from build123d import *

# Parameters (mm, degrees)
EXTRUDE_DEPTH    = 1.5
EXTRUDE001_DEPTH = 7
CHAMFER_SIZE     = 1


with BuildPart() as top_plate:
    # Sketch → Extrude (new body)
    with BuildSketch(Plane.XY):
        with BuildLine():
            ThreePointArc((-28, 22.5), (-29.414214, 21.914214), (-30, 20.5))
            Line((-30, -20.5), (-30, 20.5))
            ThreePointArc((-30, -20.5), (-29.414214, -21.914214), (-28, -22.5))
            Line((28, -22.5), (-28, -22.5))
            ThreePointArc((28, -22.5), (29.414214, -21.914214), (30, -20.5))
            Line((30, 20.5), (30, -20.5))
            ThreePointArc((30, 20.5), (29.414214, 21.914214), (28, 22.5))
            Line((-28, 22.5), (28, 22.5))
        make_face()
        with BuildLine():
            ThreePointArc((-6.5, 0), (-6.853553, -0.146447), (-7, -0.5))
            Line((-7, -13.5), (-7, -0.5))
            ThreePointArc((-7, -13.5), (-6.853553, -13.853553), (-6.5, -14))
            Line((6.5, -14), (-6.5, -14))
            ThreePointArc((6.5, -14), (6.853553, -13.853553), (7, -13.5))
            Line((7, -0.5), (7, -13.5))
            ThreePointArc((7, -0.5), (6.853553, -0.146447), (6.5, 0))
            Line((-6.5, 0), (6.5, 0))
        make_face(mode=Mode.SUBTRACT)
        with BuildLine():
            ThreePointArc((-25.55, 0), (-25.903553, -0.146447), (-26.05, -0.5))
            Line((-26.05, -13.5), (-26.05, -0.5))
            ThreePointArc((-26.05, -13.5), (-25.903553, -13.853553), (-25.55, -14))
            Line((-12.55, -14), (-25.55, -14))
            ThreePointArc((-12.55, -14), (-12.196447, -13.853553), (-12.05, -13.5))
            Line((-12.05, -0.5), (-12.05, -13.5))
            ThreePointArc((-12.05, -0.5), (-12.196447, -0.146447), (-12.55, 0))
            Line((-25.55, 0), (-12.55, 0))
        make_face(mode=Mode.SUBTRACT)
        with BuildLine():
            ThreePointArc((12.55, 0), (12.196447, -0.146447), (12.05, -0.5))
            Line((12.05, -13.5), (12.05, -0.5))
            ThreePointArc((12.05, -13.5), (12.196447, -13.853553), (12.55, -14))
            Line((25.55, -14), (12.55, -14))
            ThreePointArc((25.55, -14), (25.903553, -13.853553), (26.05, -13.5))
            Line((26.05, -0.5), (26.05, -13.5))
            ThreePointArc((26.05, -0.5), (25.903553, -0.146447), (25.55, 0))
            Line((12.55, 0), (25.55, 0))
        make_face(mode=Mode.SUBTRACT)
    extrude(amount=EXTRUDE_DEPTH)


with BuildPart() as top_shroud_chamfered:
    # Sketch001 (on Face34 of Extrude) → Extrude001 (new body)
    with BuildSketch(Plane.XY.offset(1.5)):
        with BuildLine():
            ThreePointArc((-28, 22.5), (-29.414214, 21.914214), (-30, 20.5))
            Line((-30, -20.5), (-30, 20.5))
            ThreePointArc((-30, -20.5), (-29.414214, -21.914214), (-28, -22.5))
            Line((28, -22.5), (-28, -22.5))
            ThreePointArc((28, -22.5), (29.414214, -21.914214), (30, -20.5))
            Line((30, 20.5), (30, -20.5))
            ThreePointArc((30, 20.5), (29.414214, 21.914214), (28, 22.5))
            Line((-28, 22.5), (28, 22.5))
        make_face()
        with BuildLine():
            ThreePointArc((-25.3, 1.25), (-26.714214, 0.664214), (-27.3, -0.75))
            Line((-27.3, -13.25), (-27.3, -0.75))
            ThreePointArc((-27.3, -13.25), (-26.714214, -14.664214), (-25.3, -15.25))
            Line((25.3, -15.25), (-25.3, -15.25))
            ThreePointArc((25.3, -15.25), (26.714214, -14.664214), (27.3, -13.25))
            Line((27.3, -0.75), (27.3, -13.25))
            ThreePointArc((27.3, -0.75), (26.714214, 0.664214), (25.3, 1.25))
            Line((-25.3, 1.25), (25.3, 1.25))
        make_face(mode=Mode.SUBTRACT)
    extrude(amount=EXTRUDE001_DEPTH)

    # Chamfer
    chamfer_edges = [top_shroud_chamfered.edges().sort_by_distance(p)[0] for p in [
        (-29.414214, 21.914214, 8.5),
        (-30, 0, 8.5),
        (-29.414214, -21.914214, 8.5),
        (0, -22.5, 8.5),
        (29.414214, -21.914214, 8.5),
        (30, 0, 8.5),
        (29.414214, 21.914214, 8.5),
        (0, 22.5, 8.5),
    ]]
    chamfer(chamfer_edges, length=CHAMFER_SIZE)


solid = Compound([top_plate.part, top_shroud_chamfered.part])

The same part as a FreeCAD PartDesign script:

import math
import FreeCAD as App
import Part
import Sketcher


def edges_at(feature, points):
    """Names of the edges that pass closest to the given points."""
    edges = feature.Shape.Edges
    near = lambda p: min(range(len(edges)), key=lambda i: edges[i].distToShape(Part.Vertex(*p))[0])
    return sorted({f"Edge{near(p) + 1}" for p in points})

doc = App.newDocument("Part")
body = doc.addObject("PartDesign::Body", "Body")

# Sketch on XY plane
sketch1 = body.newObject("Sketcher::SketchObject", "Sketch")
sketch1.AttachmentSupport = (doc.getObject("XY_Plane"), [""])
sketch1.MapMode = "FlatFace"
sketch1.addGeometry(Part.ArcOfCircle(Part.Circle(App.Vector(-28.000001, 20.500001, 0), App.Vector(0, 0, 1), 1.999999), math.radians(89.999957), math.radians(180.000043)), False)
sketch1.addGeometry(Part.LineSegment(App.Vector(-30, 20.5, 0), App.Vector(-30, -20.5, 0)), False)
sketch1.addGeometry(Part.ArcOfCircle(Part.Circle(App.Vector(-28.000001, -20.500001, 0), App.Vector(0, 0, 1), 1.999999), math.radians(179.999957), math.radians(270.000043)), False)
sketch1.addGeometry(Part.LineSegment(App.Vector(-28, -22.5, 0), App.Vector(28, -22.5, 0)), False)
sketch1.addGeometry(Part.ArcOfCircle(Part.Circle(App.Vector(28.000001, -20.500001, 0), App.Vector(0, 0, 1), 1.999999), math.radians(-90.000043), math.radians(0.000043)), False)
sketch1.addGeometry(Part.LineSegment(App.Vector(30, -20.5, 0), App.Vector(30, 20.5, 0)), False)
sketch1.addGeometry(Part.ArcOfCircle(Part.Circle(App.Vector(28.000001, 20.500001, 0), App.Vector(0, 0, 1), 1.999999), math.radians(-0.000043), math.radians(90.000043)), False)
sketch1.addGeometry(Part.LineSegment(App.Vector(28, 22.5, 0), App.Vector(-28, 22.5, 0)), False)
sketch1.addGeometry(Part.ArcOfCircle(Part.Circle(App.Vector(-25.549999, -0.500001, 0), App.Vector(0, 0, 1), 0.500001), math.radians(90.000153), math.radians(179.999847)), False)
sketch1.addGeometry(Part.LineSegment(App.Vector(-25.55, 0, 0), App.Vector(-12.55, 0, 0)), False)
sketch1.addGeometry(Part.ArcOfCircle(Part.Circle(App.Vector(-12.550001, -0.500001, 0), App.Vector(0, 0, 1), 0.500001), math.radians(0.000153), math.radians(89.999847)), False)
sketch1.addGeometry(Part.LineSegment(App.Vector(-12.05, -0.5, 0), App.Vector(-12.05, -13.5, 0)), False)
sketch1.addGeometry(Part.ArcOfCircle(Part.Circle(App.Vector(-12.550001, -13.499999, 0), App.Vector(0, 0, 1), 0.500001), math.radians(-89.999847), math.radians(-0.000153)), False)
sketch1.addGeometry(Part.LineSegment(App.Vector(-12.55, -14, 0), App.Vector(-25.55, -14, 0)), False)
sketch1.addGeometry(Part.ArcOfCircle(Part.Circle(App.Vector(-25.549999, -13.499999, 0), App.Vector(0, 0, 1), 0.500001), math.radians(-179.999847), math.radians(-90.000153)), False)
sketch1.addGeometry(Part.LineSegment(App.Vector(-26.05, -13.5, 0), App.Vector(-26.05, -0.5, 0)), False)
sketch1.addGeometry(Part.ArcOfCircle(Part.Circle(App.Vector(-6.499999, -0.500001, 0), App.Vector(0, 0, 1), 0.500001), math.radians(90.000153), math.radians(179.999847)), False)
sketch1.addGeometry(Part.LineSegment(App.Vector(-6.5, 0, 0), App.Vector(6.5, 0, 0)), False)
sketch1.addGeometry(Part.ArcOfCircle(Part.Circle(App.Vector(6.499999, -0.500001, 0), App.Vector(0, 0, 1), 0.500001), math.radians(0.000153), math.radians(89.999847)), False)
sketch1.addGeometry(Part.LineSegment(App.Vector(7, -0.5, 0), App.Vector(7, -13.5, 0)), False)
sketch1.addGeometry(Part.ArcOfCircle(Part.Circle(App.Vector(6.499999, -13.499999, 0), App.Vector(0, 0, 1), 0.500001), math.radians(-89.999847), math.radians(-0.000153)), False)
sketch1.addGeometry(Part.LineSegment(App.Vector(6.5, -14, 0), App.Vector(-6.5, -14, 0)), False)
sketch1.addGeometry(Part.ArcOfCircle(Part.Circle(App.Vector(-6.499999, -13.499999, 0), App.Vector(0, 0, 1), 0.500001), math.radians(-179.999847), math.radians(-90.000153)), False)
sketch1.addGeometry(Part.LineSegment(App.Vector(-7, -13.5, 0), App.Vector(-7, -0.5, 0)), False)
sketch1.addGeometry(Part.ArcOfCircle(Part.Circle(App.Vector(12.550001, -0.500001, 0), App.Vector(0, 0, 1), 0.500001), math.radians(90.000153), math.radians(179.999847)), False)
sketch1.addGeometry(Part.LineSegment(App.Vector(12.55, 0, 0), App.Vector(25.55, 0, 0)), False)
sketch1.addGeometry(Part.ArcOfCircle(Part.Circle(App.Vector(25.549999, -0.500001, 0), App.Vector(0, 0, 1), 0.500001), math.radians(0.000153), math.radians(89.999847)), False)
sketch1.addGeometry(Part.LineSegment(App.Vector(26.05, -0.5, 0), App.Vector(26.05, -13.5, 0)), False)
sketch1.addGeometry(Part.ArcOfCircle(Part.Circle(App.Vector(25.549999, -13.499999, 0), App.Vector(0, 0, 1), 0.500001), math.radians(-89.999847), math.radians(-0.000153)), False)
sketch1.addGeometry(Part.LineSegment(App.Vector(25.55, -14, 0), App.Vector(12.55, -14, 0)), False)
sketch1.addGeometry(Part.ArcOfCircle(Part.Circle(App.Vector(12.550001, -13.499999, 0), App.Vector(0, 0, 1), 0.500001), math.radians(-179.999847), math.radians(-90.000153)), False)
sketch1.addGeometry(Part.LineSegment(App.Vector(12.05, -13.5, 0), App.Vector(12.05, -0.5, 0)), False)
sketch1.addConstraint(Sketcher.Constraint("Tangent", 0, 2, 1, 1))
sketch1.addConstraint(Sketcher.Constraint("Tangent", 1, 2, 2, 1))
sketch1.addConstraint(Sketcher.Constraint("Tangent", 2, 2, 3, 1))
sketch1.addConstraint(Sketcher.Constraint("Tangent", 3, 2, 4, 1))
sketch1.addConstraint(Sketcher.Constraint("Tangent", 4, 2, 5, 1))
sketch1.addConstraint(Sketcher.Constraint("Tangent", 5, 2, 6, 1))
sketch1.addConstraint(Sketcher.Constraint("Tangent", 6, 2, 7, 1))
sketch1.addConstraint(Sketcher.Constraint("Tangent", 7, 2, 0, 1))
sketch1.addConstraint(Sketcher.Constraint("Coincident", 8, 1, 9, 1))
sketch1.addConstraint(Sketcher.Constraint("Coincident", 9, 2, 10, 2))
sketch1.addConstraint(Sketcher.Constraint("Coincident", 10, 1, 11, 1))
sketch1.addConstraint(Sketcher.Constraint("Coincident", 11, 2, 12, 2))
sketch1.addConstraint(Sketcher.Constraint("Coincident", 12, 1, 13, 1))
sketch1.addConstraint(Sketcher.Constraint("Coincident", 13, 2, 14, 2))
sketch1.addConstraint(Sketcher.Constraint("Coincident", 14, 1, 15, 1))
sketch1.addConstraint(Sketcher.Constraint("Coincident", 15, 2, 8, 2))
sketch1.addConstraint(Sketcher.Constraint("Coincident", 16, 1, 17, 1))
sketch1.addConstraint(Sketcher.Constraint("Coincident", 17, 2, 18, 2))
sketch1.addConstraint(Sketcher.Constraint("Coincident", 18, 1, 19, 1))
sketch1.addConstraint(Sketcher.Constraint("Coincident", 19, 2, 20, 2))
sketch1.addConstraint(Sketcher.Constraint("Coincident", 20, 1, 21, 1))
sketch1.addConstraint(Sketcher.Constraint("Coincident", 21, 2, 22, 2))
sketch1.addConstraint(Sketcher.Constraint("Coincident", 22, 1, 23, 1))
sketch1.addConstraint(Sketcher.Constraint("Coincident", 23, 2, 16, 2))
sketch1.addConstraint(Sketcher.Constraint("Coincident", 24, 1, 25, 1))
sketch1.addConstraint(Sketcher.Constraint("Coincident", 25, 2, 26, 2))
sketch1.addConstraint(Sketcher.Constraint("Coincident", 26, 1, 27, 1))
sketch1.addConstraint(Sketcher.Constraint("Coincident", 27, 2, 28, 2))
sketch1.addConstraint(Sketcher.Constraint("Coincident", 28, 1, 29, 1))
sketch1.addConstraint(Sketcher.Constraint("Coincident", 29, 2, 30, 2))
sketch1.addConstraint(Sketcher.Constraint("Coincident", 30, 1, 31, 1))
sketch1.addConstraint(Sketcher.Constraint("Coincident", 31, 2, 24, 2))
sketch1.addConstraint(Sketcher.Constraint("Vertical", 1))
sketch1.addConstraint(Sketcher.Constraint("Horizontal", 3))
sketch1.addConstraint(Sketcher.Constraint("Vertical", 5))
sketch1.addConstraint(Sketcher.Constraint("Horizontal", 7))
sketch1.addConstraint(Sketcher.Constraint("Horizontal", 9))
sketch1.addConstraint(Sketcher.Constraint("Vertical", 11))
sketch1.addConstraint(Sketcher.Constraint("Horizontal", 13))
sketch1.addConstraint(Sketcher.Constraint("Vertical", 15))
sketch1.addConstraint(Sketcher.Constraint("Horizontal", 17))
sketch1.addConstraint(Sketcher.Constraint("Vertical", 19))
sketch1.addConstraint(Sketcher.Constraint("Horizontal", 21))
sketch1.addConstraint(Sketcher.Constraint("Vertical", 23))
sketch1.addConstraint(Sketcher.Constraint("Horizontal", 25))
sketch1.addConstraint(Sketcher.Constraint("Vertical", 27))
sketch1.addConstraint(Sketcher.Constraint("Horizontal", 29))
sketch1.addConstraint(Sketcher.Constraint("Vertical", 31))
sketch1.addConstraint(Sketcher.Constraint("Equal", 0, 2))
sketch1.addConstraint(Sketcher.Constraint("Equal", 2, 4))
sketch1.addConstraint(Sketcher.Constraint("Equal", 4, 6))
sketch1.addConstraint(Sketcher.Constraint("Equal", 8, 10))
sketch1.addConstraint(Sketcher.Constraint("Equal", 10, 12))
sketch1.addConstraint(Sketcher.Constraint("Equal", 12, 14))
sketch1.addConstraint(Sketcher.Constraint("Equal", 14, 16))
sketch1.addConstraint(Sketcher.Constraint("Equal", 16, 18))
sketch1.addConstraint(Sketcher.Constraint("Equal", 18, 20))
sketch1.addConstraint(Sketcher.Constraint("Equal", 20, 22))
sketch1.addConstraint(Sketcher.Constraint("Equal", 22, 24))
sketch1.addConstraint(Sketcher.Constraint("Equal", 24, 26))
sketch1.addConstraint(Sketcher.Constraint("Equal", 26, 28))
sketch1.addConstraint(Sketcher.Constraint("Equal", 28, 30))
sketch1.addConstraint(Sketcher.Constraint("Symmetric", 0, 3, 4, 3, -1, 1))
sketch1.addConstraint(Sketcher.Constraint("Symmetric", 16, 1, 17, 2, -1, 1))
sketch1.addConstraint(Sketcher.Constraint("Symmetric", 9, 2, 24, 1, -1, 1))
sketch1.addConstraint(Sketcher.Constraint("Symmetric", 10, 3, 24, 3, -2))
sketch1.addConstraint(Sketcher.Constraint("Symmetric", 14, 3, 28, 3, -2))
sketch1.addConstraint(Sketcher.Constraint("Symmetric", 19, 2, 22, 1, -2))
sketch1.addConstraint(Sketcher.Constraint("Horizontal", 14, 3, 20, 3))
sketch1.addConstraint(Sketcher.Constraint("Horizontal", 26, 3, 10, 1))
sketch1.addConstraint(Sketcher.Constraint("Horizontal", 30, 3, 11, 2))
sketch1.addConstraint(Sketcher.Constraint("Horizontal", 11, 2, 14, 1))
sketch1.addConstraint(Sketcher.Constraint("Horizontal", 10, 1, 15, 2))
sketch1.addConstraint(Sketcher.Constraint("Horizontal", 15, 2, 18, 1))
sketch1.addConstraint(Sketcher.Constraint("Horizontal", 14, 1, 19, 2))
sketch1.addConstraint(Sketcher.Constraint("Horizontal", 18, 1, 23, 2))
sketch1.addConstraint(Sketcher.Constraint("Horizontal", 23, 2, 26, 1))
sketch1.addConstraint(Sketcher.Constraint("Horizontal", 22, 1, 27, 2))
sketch1.addConstraint(Sketcher.Constraint("Horizontal", 27, 2, 30, 1))
sketch1.addConstraint(Sketcher.Constraint("Horizontal", 26, 1, 31, 2))
sketch1.addConstraint(Sketcher.Constraint("Vertical", 14, 3, 8, 1))
sketch1.addConstraint(Sketcher.Constraint("Vertical", 12, 3, 9, 2))
sketch1.addConstraint(Sketcher.Constraint("Vertical", 9, 2, 12, 1))
sketch1.addConstraint(Sketcher.Constraint("Vertical", 8, 1, 13, 2))
sketch1.addConstraint(Sketcher.Constraint("Vertical", 22, 3, 16, 1))
sketch1.addConstraint(Sketcher.Constraint("Vertical", 17, 2, 20, 1))
sketch1.addConstraint(Sketcher.Constraint("Vertical", 16, 1, 21, 2))
sketch1.addConstraint(Sketcher.Constraint("Vertical", 28, 3, 25, 2))
sketch1.addConstraint(Sketcher.Constraint("Vertical", 25, 2, 28, 1))
sketch1.addConstraint(Sketcher.Constraint("Vertical", 24, 1, 29, 2))
sketch1.addConstraint(Sketcher.Constraint("Equal", 13, 17))
sketch1.addConstraint(Sketcher.Constraint("Equal", 29, 11))
sketch1.addConstraint(Sketcher.Constraint("Radius", 0, 1.999999))
sketch1.addConstraint(Sketcher.Constraint("Radius", 8, 0.500001))
sketch1.addConstraint(Sketcher.Constraint("DistanceX", 3, 1, 3, 2, 56.0))
sketch1.addConstraint(Sketcher.Constraint("DistanceX", 9, 1, 9, 2, 13.0))
sketch1.addConstraint(Sketcher.Constraint("DistanceY", 1, 2, 1, 1, 41.0))
sketch1.addConstraint(Sketcher.Constraint("DistanceX", 8, 3, -1, 1, 25.549999))
pad1 = body.newObject("PartDesign::Pad", "Pad")
pad1.Profile = sketch1
pad1.Length = 1.5
body2 = doc.addObject("PartDesign::Body", "Body001")

# Sketch on XY plane
sketch2 = body2.newObject("Sketcher::SketchObject", "Sketch001")
sketch2.AttachmentSupport = (doc.getObject("XY_Plane001"), [""])
sketch2.MapMode = "FlatFace"
sketch2.AttachmentOffset = App.Placement(App.Vector(0, 0, 1.5), App.Rotation())
sketch2.addGeometry(Part.ArcOfCircle(Part.Circle(App.Vector(-28.000001, 20.500001, 0), App.Vector(0, 0, 1), 1.999999), math.radians(89.999957), math.radians(180.000043)), False)
sketch2.addGeometry(Part.LineSegment(App.Vector(-30, 20.5, 0), App.Vector(-30, -20.5, 0)), False)
sketch2.addGeometry(Part.ArcOfCircle(Part.Circle(App.Vector(-28.000001, -20.500001, 0), App.Vector(0, 0, 1), 1.999999), math.radians(179.999957), math.radians(270.000043)), False)
sketch2.addGeometry(Part.LineSegment(App.Vector(-28, -22.5, 0), App.Vector(28, -22.5, 0)), False)
sketch2.addGeometry(Part.ArcOfCircle(Part.Circle(App.Vector(28.000001, -20.500001, 0), App.Vector(0, 0, 1), 1.999999), math.radians(-90.000043), math.radians(0.000043)), False)
sketch2.addGeometry(Part.LineSegment(App.Vector(30, -20.5, 0), App.Vector(30, 20.5, 0)), False)
sketch2.addGeometry(Part.ArcOfCircle(Part.Circle(App.Vector(28.000001, 20.500001, 0), App.Vector(0, 0, 1), 1.999999), math.radians(-0.000043), math.radians(90.000043)), False)
sketch2.addGeometry(Part.LineSegment(App.Vector(28, 22.5, 0), App.Vector(-28, 22.5, 0)), False)
sketch2.addGeometry(Part.ArcOfCircle(Part.Circle(App.Vector(-25.300001, -0.749999, 0), App.Vector(0, 0, 1), 1.999999), math.radians(89.999957), math.radians(180.000043)), False)
sketch2.addGeometry(Part.LineSegment(App.Vector(-25.3, 1.25, 0), App.Vector(25.3, 1.25, 0)), False)
sketch2.addGeometry(Part.ArcOfCircle(Part.Circle(App.Vector(25.300001, -0.749999, 0), App.Vector(0, 0, 1), 1.999999), math.radians(-0.000043), math.radians(90.000043)), False)
sketch2.addGeometry(Part.LineSegment(App.Vector(27.3, -0.75, 0), App.Vector(27.3, -13.25, 0)), False)
sketch2.addGeometry(Part.ArcOfCircle(Part.Circle(App.Vector(25.300001, -13.250001, 0), App.Vector(0, 0, 1), 1.999999), math.radians(-90.000043), math.radians(0.000043)), False)
sketch2.addGeometry(Part.LineSegment(App.Vector(25.3, -15.25, 0), App.Vector(-25.3, -15.25, 0)), False)
sketch2.addGeometry(Part.ArcOfCircle(Part.Circle(App.Vector(-25.300001, -13.250001, 0), App.Vector(0, 0, 1), 1.999999), math.radians(179.999957), math.radians(270.000043)), False)
sketch2.addGeometry(Part.LineSegment(App.Vector(-27.3, -13.25, 0), App.Vector(-27.3, -0.75, 0)), False)
sketch2.addConstraint(Sketcher.Constraint("Tangent", 0, 2, 1, 1))
sketch2.addConstraint(Sketcher.Constraint("Tangent", 1, 2, 2, 1))
sketch2.addConstraint(Sketcher.Constraint("Tangent", 2, 2, 3, 1))
sketch2.addConstraint(Sketcher.Constraint("Tangent", 3, 2, 4, 1))
sketch2.addConstraint(Sketcher.Constraint("Tangent", 4, 2, 5, 1))
sketch2.addConstraint(Sketcher.Constraint("Tangent", 5, 2, 6, 1))
sketch2.addConstraint(Sketcher.Constraint("Tangent", 6, 2, 7, 1))
sketch2.addConstraint(Sketcher.Constraint("Tangent", 7, 2, 0, 1))
sketch2.addConstraint(Sketcher.Constraint("Tangent", 8, 1, 9, 1))
sketch2.addConstraint(Sketcher.Constraint("Tangent", 9, 2, 10, 2))
sketch2.addConstraint(Sketcher.Constraint("Tangent", 10, 1, 11, 1))
sketch2.addConstraint(Sketcher.Constraint("Tangent", 11, 2, 12, 2))
sketch2.addConstraint(Sketcher.Constraint("Tangent", 12, 1, 13, 1))
sketch2.addConstraint(Sketcher.Constraint("Tangent", 13, 2, 14, 2))
sketch2.addConstraint(Sketcher.Constraint("Tangent", 14, 1, 15, 1))
sketch2.addConstraint(Sketcher.Constraint("Tangent", 15, 2, 8, 2))
sketch2.addConstraint(Sketcher.Constraint("Vertical", 1))
sketch2.addConstraint(Sketcher.Constraint("Horizontal", 3))
sketch2.addConstraint(Sketcher.Constraint("Vertical", 5))
sketch2.addConstraint(Sketcher.Constraint("Horizontal", 7))
sketch2.addConstraint(Sketcher.Constraint("Horizontal", 9))
sketch2.addConstraint(Sketcher.Constraint("Vertical", 11))
sketch2.addConstraint(Sketcher.Constraint("Horizontal", 13))
sketch2.addConstraint(Sketcher.Constraint("Vertical", 15))
sketch2.addConstraint(Sketcher.Constraint("Equal", 0, 2))
sketch2.addConstraint(Sketcher.Constraint("Equal", 2, 4))
sketch2.addConstraint(Sketcher.Constraint("Equal", 4, 6))
sketch2.addConstraint(Sketcher.Constraint("Equal", 6, 8))
sketch2.addConstraint(Sketcher.Constraint("Equal", 8, 10))
sketch2.addConstraint(Sketcher.Constraint("Equal", 10, 12))
sketch2.addConstraint(Sketcher.Constraint("Equal", 12, 14))
sketch2.addConstraint(Sketcher.Constraint("Symmetric", 0, 3, 4, 3, -1, 1))
sketch2.addConstraint(Sketcher.Constraint("Radius", 0, 1.999999))
sketch2.addConstraint(Sketcher.Constraint("DistanceX", 3, 1, 3, 2, 56.0))
sketch2.addConstraint(Sketcher.Constraint("DistanceY", 1, 2, 1, 1, 41.0))
sketch2.addConstraint(Sketcher.Constraint("DistanceX", 9, 1, 9, 2, 50.6))
sketch2.addConstraint(Sketcher.Constraint("DistanceY", 11, 2, 11, 1, 12.5))
sketch2.addConstraint(Sketcher.Constraint("DistanceX", 8, 3, -1, 1, 25.300001))
sketch2.addConstraint(Sketcher.Constraint("DistanceY", 8, 3, -1, 1, 0.749999))
pad2 = body2.newObject("PartDesign::Pad", "Pad001")
pad2.Profile = sketch2
pad2.Length = 7
doc.recompute()

chamfer = body2.newObject("PartDesign::Chamfer", "Chamfer")
chamfer.Base = (pad2, edges_at(pad2, [
    (-29.414, 21.914, 8.5),
    (-30, 0, 8.5),
    (-29.414, -21.914, 8.5),
    (0, -22.5, 8.5),
    (29.414, -21.914, 8.5),
    (30, 0, 8.5),
    (29.414, 21.914, 8.5),
    (0, 22.5, 8.5),
]))
chamfer.Size = 1

doc.recompute()
